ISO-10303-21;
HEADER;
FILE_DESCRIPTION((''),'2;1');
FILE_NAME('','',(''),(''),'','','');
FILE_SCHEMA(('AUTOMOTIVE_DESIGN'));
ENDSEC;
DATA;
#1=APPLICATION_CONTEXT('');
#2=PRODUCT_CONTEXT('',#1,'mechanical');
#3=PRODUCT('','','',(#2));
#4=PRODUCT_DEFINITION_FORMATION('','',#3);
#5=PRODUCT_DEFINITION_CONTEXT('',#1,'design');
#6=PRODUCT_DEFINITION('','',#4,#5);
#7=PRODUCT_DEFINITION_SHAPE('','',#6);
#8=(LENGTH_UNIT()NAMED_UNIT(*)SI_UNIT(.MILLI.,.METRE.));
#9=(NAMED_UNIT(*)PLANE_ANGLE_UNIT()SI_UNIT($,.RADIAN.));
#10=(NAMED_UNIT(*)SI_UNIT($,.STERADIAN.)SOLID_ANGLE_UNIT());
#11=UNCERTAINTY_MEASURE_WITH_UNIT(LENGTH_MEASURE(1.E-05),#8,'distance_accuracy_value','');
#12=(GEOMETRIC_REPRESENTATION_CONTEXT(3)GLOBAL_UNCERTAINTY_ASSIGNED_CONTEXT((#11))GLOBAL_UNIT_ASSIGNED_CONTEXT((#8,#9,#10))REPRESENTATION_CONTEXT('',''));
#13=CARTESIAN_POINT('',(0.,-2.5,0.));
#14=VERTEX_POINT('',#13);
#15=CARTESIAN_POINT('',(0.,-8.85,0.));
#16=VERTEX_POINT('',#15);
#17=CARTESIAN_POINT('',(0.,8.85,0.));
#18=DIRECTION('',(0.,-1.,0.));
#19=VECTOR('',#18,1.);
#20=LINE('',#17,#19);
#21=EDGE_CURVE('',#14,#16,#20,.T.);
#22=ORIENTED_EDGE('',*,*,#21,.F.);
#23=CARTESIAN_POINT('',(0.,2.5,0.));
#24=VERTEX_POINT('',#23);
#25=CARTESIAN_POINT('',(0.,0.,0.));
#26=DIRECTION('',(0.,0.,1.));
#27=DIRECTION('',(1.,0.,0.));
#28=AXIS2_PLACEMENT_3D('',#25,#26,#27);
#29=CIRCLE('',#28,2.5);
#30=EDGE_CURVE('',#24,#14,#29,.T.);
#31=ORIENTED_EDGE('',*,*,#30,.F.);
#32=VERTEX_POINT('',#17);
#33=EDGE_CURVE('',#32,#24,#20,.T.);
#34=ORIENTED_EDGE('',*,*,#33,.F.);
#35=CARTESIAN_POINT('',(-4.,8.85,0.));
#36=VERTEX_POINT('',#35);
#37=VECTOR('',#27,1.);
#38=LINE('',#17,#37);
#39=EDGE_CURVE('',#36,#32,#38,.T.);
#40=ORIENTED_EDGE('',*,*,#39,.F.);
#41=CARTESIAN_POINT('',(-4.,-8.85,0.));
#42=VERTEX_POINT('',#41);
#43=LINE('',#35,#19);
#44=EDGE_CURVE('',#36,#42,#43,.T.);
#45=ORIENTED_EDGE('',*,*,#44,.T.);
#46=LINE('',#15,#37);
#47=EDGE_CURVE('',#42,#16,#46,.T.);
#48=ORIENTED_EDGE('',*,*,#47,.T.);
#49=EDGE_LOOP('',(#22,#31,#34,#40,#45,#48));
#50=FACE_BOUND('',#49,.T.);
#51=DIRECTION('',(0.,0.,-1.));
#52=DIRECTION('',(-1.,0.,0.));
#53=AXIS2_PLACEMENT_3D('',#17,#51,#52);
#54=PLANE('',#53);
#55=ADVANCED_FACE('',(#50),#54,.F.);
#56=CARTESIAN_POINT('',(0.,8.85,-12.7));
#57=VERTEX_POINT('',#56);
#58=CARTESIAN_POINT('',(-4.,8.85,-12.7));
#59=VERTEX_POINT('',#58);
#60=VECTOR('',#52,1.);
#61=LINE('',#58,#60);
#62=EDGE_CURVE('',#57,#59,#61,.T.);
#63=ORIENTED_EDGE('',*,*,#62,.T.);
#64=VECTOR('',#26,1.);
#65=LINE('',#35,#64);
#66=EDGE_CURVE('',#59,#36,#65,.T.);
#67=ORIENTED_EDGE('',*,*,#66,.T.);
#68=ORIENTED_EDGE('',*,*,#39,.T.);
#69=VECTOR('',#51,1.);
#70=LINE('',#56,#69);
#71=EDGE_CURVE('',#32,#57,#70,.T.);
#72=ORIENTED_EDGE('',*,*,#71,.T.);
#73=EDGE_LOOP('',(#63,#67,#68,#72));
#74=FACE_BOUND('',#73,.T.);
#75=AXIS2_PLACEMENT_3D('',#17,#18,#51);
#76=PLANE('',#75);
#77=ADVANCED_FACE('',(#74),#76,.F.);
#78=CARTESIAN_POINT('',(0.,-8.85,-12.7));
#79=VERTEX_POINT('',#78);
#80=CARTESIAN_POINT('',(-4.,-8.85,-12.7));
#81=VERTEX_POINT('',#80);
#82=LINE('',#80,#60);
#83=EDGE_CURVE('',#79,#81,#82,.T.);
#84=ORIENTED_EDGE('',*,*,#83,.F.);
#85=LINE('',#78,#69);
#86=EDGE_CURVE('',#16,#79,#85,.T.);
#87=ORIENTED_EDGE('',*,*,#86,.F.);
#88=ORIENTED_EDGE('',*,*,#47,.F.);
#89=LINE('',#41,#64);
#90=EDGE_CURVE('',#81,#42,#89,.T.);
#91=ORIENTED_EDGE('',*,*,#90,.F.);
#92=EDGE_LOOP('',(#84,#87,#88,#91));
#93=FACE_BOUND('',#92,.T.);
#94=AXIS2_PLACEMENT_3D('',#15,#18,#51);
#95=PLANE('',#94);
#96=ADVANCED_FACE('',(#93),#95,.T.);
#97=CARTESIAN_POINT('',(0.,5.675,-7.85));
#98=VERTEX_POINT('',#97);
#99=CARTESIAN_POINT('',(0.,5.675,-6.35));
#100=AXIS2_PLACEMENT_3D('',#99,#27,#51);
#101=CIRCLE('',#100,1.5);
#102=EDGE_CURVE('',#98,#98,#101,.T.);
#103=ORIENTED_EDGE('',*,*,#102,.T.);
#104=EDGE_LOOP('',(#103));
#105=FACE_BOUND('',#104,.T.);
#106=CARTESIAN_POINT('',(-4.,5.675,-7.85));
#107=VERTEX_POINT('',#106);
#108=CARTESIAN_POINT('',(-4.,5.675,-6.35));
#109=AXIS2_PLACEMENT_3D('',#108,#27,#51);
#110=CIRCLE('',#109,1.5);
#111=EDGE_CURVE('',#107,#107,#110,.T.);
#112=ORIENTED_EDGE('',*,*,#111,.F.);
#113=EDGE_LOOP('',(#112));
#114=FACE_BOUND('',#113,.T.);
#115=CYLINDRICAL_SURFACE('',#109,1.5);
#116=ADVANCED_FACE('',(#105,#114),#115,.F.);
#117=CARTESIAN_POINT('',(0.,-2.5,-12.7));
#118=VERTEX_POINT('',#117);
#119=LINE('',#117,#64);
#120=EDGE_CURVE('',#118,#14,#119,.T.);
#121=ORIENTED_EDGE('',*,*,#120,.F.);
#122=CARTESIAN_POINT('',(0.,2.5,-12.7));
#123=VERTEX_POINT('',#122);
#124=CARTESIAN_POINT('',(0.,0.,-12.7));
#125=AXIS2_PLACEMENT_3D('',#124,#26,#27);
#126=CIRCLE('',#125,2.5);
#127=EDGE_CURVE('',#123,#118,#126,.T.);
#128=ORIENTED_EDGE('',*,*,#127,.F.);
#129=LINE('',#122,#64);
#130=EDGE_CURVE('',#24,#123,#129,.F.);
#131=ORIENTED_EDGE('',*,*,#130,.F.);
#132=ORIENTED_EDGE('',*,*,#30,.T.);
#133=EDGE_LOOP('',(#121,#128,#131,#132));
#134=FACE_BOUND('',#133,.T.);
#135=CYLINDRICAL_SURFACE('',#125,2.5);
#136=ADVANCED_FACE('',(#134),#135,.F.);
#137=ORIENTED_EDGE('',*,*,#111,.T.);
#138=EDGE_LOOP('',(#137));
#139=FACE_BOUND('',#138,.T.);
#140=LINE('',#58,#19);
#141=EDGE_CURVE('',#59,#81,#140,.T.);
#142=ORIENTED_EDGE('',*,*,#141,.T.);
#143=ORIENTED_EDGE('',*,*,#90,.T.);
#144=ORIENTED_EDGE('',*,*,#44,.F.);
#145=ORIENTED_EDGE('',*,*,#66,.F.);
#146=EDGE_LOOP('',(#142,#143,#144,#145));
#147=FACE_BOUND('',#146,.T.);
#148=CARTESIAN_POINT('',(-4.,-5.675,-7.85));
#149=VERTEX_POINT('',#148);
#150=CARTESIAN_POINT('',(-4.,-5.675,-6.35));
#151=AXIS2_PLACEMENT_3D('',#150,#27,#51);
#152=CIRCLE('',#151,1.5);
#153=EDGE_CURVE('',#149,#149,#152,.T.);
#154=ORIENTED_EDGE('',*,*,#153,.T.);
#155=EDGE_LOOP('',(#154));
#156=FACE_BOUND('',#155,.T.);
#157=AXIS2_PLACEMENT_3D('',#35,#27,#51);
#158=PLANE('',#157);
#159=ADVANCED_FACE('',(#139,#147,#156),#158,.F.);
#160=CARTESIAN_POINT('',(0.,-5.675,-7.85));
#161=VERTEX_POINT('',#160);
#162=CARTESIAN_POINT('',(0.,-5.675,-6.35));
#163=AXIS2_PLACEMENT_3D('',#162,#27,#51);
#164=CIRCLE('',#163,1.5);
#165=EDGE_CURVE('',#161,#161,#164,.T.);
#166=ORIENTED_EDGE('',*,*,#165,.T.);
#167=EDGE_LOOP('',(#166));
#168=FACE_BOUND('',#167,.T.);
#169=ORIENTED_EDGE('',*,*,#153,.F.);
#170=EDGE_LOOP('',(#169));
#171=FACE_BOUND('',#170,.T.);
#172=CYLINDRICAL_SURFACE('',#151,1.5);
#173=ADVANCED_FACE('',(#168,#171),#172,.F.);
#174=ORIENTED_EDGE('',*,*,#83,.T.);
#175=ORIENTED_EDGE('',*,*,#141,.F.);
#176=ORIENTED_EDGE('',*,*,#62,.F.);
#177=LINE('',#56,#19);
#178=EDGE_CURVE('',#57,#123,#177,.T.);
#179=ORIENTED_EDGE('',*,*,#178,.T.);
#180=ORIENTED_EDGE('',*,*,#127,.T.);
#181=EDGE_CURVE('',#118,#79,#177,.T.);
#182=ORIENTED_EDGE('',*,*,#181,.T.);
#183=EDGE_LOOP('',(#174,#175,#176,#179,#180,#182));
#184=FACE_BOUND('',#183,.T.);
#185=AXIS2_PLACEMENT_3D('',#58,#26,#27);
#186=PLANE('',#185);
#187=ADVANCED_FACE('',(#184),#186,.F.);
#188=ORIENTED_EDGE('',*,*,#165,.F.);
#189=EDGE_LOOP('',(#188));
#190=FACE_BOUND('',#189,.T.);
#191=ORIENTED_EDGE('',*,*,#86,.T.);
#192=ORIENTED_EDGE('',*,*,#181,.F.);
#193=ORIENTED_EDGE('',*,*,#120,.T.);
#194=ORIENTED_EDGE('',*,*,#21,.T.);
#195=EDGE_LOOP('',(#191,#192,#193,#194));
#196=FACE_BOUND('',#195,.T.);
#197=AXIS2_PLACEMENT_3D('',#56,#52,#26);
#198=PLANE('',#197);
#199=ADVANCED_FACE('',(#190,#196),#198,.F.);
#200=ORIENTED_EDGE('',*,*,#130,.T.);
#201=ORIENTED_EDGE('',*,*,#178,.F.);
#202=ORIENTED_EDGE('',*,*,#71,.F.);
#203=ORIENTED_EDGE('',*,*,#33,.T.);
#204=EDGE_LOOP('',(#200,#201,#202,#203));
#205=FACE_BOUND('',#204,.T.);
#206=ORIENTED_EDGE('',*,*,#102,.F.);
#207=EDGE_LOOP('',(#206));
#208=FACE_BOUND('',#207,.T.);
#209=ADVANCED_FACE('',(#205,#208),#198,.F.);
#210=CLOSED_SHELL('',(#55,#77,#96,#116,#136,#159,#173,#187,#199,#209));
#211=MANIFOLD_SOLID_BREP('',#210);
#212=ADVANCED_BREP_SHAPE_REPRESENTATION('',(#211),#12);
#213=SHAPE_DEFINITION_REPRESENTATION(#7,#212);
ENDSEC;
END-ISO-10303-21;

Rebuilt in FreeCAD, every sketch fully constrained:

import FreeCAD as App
import Part
import Sketcher
from FreeCAD import Vector
Q = App.Units.Quantity

doc = App.newDocument("Part")
params = doc.addObject("Spreadsheet::Sheet", "Params")
for row, (alias, value) in enumerate([
    ("sketch1_width", "4 mm"),
    ("sketch1_height", "12.7 mm"),
    ("pad1_length", "17.7 mm"),
    ("sketch2_diameter", "5 mm"),
    ("sketch3_diameter", "3 mm"),
], start=1):
    params.set(f"A{row}", alias)
    params.set(f"B{row}", "=" + value)
    params.setAlias(f"B{row}", alias)

body = doc.addObject("PartDesign::Body", "Body")

# Sketch on XZ plane
sketch1 = doc.addObject("Sketcher::SketchObject", "Sketch")
body.addObject(sketch1)
sketch1.AttachmentSupport = (doc.XZ_Plane, [""])
sketch1.MapMode = "FlatFace"
sketch1.addGeometry([
    Part.LineSegment(Vector(-4, -12.7, 0), Vector(-4, 0, 0)),
    Part.LineSegment(Vector(-4, 0, 0), Vector(0, 0, 0)),
    Part.LineSegment(Vector(0, 0, 0), Vector(0, -12.7, 0)),
    Part.LineSegment(Vector(0, -12.7, 0), Vector(-4, -12.7, 0)),
], False)
sketch1.addConstraint([
    Sketcher.Constraint("Coincident", 0, 2, 1, 1),
    Sketcher.Constraint("Coincident", 1, 2, 2, 1),
    Sketcher.Constraint("Coincident", 2, 2, 3, 1),
    Sketcher.Constraint("Coincident", 3, 2, 0, 1),
    Sketcher.Constraint("Vertical", 0),
    Sketcher.Constraint("Horizontal", 1),
    Sketcher.Constraint("Vertical", 2),
    Sketcher.Constraint("Horizontal", 3),
    Sketcher.Constraint("Coincident", 1, 2, -1, 1),
    Sketcher.Constraint("DistanceX", 1, 1, 1, 2, Q("4 mm")),
    Sketcher.Constraint("DistanceY", 0, 1, 0, 2, Q("12.7 mm")),
])
sketch1.setExpression("Constraints[9]", "Params.sketch1_width")
sketch1.setExpression("Constraints[10]", "Params.sketch1_height")
pad1 = doc.addObject("PartDesign::Pad", "Pad")
body.addObject(pad1)
pad1.Profile = sketch1
pad1.setExpression("Length", "Params.pad1_length")
pad1.Midplane = True

# Sketch on XY plane
sketch2 = doc.addObject("Sketcher::SketchObject", "Sketch001")
body.addObject(sketch2)
sketch2.AttachmentSupport = (doc.XY_Plane, [""])
sketch2.MapMode = "FlatFace"
sketch2.addGeometry(Part.Circle(Vector(0, 0, 0), Vector(0, 0, 1), 2.5), False)
sketch2.addConstraint([
    Sketcher.Constraint("Coincident", 0, 3, -1, 1),
    Sketcher.Constraint("Diameter", 0, Q("5 mm")),
])
sketch2.setExpression("Constraints[1]", "Params.sketch2_diameter")
pocket1 = doc.addObject("PartDesign::Pocket", "Pocket")
body.addObject(pocket1)
pocket1.Profile = sketch2
pocket1.Type = "ThroughAll"

# Sketch on YZ plane
sketch3 = doc.addObject("Sketcher::SketchObject", "Sketch002")
body.addObject(sketch3)
sketch3.AttachmentSupport = (doc.YZ_Plane, [""])
sketch3.MapMode = "FlatFace"
sketch3.addGeometry([
    Part.Circle(Vector(5.7, -6.3, 0), Vector(0, 0, 1), 1.5),
    Part.Circle(Vector(-5.7, -6.3, 0), Vector(0, 0, 1), 1.5),
], False)
sketch3.addConstraint([
    Sketcher.Constraint("Equal", 0, 1),
    Sketcher.Constraint("Symmetric", 0, 3, 1, 3, -2),
    Sketcher.Constraint("Diameter", 0, Q("3 mm")),
    Sketcher.Constraint("DistanceY", 0, 3, -1, 1, Q("6.35 mm")),
    Sketcher.Constraint("DistanceX", 1, 3, 0, 3, Q("11.35 mm")),
])
sketch3.setExpression("Constraints[2]", "Params.sketch3_diameter")
pocket2 = doc.addObject("PartDesign::Pocket", "Pocket001")
body.addObject(pocket2)
pocket2.Profile = sketch3
pocket2.Type = "ThroughAll"

doc.recompute()
